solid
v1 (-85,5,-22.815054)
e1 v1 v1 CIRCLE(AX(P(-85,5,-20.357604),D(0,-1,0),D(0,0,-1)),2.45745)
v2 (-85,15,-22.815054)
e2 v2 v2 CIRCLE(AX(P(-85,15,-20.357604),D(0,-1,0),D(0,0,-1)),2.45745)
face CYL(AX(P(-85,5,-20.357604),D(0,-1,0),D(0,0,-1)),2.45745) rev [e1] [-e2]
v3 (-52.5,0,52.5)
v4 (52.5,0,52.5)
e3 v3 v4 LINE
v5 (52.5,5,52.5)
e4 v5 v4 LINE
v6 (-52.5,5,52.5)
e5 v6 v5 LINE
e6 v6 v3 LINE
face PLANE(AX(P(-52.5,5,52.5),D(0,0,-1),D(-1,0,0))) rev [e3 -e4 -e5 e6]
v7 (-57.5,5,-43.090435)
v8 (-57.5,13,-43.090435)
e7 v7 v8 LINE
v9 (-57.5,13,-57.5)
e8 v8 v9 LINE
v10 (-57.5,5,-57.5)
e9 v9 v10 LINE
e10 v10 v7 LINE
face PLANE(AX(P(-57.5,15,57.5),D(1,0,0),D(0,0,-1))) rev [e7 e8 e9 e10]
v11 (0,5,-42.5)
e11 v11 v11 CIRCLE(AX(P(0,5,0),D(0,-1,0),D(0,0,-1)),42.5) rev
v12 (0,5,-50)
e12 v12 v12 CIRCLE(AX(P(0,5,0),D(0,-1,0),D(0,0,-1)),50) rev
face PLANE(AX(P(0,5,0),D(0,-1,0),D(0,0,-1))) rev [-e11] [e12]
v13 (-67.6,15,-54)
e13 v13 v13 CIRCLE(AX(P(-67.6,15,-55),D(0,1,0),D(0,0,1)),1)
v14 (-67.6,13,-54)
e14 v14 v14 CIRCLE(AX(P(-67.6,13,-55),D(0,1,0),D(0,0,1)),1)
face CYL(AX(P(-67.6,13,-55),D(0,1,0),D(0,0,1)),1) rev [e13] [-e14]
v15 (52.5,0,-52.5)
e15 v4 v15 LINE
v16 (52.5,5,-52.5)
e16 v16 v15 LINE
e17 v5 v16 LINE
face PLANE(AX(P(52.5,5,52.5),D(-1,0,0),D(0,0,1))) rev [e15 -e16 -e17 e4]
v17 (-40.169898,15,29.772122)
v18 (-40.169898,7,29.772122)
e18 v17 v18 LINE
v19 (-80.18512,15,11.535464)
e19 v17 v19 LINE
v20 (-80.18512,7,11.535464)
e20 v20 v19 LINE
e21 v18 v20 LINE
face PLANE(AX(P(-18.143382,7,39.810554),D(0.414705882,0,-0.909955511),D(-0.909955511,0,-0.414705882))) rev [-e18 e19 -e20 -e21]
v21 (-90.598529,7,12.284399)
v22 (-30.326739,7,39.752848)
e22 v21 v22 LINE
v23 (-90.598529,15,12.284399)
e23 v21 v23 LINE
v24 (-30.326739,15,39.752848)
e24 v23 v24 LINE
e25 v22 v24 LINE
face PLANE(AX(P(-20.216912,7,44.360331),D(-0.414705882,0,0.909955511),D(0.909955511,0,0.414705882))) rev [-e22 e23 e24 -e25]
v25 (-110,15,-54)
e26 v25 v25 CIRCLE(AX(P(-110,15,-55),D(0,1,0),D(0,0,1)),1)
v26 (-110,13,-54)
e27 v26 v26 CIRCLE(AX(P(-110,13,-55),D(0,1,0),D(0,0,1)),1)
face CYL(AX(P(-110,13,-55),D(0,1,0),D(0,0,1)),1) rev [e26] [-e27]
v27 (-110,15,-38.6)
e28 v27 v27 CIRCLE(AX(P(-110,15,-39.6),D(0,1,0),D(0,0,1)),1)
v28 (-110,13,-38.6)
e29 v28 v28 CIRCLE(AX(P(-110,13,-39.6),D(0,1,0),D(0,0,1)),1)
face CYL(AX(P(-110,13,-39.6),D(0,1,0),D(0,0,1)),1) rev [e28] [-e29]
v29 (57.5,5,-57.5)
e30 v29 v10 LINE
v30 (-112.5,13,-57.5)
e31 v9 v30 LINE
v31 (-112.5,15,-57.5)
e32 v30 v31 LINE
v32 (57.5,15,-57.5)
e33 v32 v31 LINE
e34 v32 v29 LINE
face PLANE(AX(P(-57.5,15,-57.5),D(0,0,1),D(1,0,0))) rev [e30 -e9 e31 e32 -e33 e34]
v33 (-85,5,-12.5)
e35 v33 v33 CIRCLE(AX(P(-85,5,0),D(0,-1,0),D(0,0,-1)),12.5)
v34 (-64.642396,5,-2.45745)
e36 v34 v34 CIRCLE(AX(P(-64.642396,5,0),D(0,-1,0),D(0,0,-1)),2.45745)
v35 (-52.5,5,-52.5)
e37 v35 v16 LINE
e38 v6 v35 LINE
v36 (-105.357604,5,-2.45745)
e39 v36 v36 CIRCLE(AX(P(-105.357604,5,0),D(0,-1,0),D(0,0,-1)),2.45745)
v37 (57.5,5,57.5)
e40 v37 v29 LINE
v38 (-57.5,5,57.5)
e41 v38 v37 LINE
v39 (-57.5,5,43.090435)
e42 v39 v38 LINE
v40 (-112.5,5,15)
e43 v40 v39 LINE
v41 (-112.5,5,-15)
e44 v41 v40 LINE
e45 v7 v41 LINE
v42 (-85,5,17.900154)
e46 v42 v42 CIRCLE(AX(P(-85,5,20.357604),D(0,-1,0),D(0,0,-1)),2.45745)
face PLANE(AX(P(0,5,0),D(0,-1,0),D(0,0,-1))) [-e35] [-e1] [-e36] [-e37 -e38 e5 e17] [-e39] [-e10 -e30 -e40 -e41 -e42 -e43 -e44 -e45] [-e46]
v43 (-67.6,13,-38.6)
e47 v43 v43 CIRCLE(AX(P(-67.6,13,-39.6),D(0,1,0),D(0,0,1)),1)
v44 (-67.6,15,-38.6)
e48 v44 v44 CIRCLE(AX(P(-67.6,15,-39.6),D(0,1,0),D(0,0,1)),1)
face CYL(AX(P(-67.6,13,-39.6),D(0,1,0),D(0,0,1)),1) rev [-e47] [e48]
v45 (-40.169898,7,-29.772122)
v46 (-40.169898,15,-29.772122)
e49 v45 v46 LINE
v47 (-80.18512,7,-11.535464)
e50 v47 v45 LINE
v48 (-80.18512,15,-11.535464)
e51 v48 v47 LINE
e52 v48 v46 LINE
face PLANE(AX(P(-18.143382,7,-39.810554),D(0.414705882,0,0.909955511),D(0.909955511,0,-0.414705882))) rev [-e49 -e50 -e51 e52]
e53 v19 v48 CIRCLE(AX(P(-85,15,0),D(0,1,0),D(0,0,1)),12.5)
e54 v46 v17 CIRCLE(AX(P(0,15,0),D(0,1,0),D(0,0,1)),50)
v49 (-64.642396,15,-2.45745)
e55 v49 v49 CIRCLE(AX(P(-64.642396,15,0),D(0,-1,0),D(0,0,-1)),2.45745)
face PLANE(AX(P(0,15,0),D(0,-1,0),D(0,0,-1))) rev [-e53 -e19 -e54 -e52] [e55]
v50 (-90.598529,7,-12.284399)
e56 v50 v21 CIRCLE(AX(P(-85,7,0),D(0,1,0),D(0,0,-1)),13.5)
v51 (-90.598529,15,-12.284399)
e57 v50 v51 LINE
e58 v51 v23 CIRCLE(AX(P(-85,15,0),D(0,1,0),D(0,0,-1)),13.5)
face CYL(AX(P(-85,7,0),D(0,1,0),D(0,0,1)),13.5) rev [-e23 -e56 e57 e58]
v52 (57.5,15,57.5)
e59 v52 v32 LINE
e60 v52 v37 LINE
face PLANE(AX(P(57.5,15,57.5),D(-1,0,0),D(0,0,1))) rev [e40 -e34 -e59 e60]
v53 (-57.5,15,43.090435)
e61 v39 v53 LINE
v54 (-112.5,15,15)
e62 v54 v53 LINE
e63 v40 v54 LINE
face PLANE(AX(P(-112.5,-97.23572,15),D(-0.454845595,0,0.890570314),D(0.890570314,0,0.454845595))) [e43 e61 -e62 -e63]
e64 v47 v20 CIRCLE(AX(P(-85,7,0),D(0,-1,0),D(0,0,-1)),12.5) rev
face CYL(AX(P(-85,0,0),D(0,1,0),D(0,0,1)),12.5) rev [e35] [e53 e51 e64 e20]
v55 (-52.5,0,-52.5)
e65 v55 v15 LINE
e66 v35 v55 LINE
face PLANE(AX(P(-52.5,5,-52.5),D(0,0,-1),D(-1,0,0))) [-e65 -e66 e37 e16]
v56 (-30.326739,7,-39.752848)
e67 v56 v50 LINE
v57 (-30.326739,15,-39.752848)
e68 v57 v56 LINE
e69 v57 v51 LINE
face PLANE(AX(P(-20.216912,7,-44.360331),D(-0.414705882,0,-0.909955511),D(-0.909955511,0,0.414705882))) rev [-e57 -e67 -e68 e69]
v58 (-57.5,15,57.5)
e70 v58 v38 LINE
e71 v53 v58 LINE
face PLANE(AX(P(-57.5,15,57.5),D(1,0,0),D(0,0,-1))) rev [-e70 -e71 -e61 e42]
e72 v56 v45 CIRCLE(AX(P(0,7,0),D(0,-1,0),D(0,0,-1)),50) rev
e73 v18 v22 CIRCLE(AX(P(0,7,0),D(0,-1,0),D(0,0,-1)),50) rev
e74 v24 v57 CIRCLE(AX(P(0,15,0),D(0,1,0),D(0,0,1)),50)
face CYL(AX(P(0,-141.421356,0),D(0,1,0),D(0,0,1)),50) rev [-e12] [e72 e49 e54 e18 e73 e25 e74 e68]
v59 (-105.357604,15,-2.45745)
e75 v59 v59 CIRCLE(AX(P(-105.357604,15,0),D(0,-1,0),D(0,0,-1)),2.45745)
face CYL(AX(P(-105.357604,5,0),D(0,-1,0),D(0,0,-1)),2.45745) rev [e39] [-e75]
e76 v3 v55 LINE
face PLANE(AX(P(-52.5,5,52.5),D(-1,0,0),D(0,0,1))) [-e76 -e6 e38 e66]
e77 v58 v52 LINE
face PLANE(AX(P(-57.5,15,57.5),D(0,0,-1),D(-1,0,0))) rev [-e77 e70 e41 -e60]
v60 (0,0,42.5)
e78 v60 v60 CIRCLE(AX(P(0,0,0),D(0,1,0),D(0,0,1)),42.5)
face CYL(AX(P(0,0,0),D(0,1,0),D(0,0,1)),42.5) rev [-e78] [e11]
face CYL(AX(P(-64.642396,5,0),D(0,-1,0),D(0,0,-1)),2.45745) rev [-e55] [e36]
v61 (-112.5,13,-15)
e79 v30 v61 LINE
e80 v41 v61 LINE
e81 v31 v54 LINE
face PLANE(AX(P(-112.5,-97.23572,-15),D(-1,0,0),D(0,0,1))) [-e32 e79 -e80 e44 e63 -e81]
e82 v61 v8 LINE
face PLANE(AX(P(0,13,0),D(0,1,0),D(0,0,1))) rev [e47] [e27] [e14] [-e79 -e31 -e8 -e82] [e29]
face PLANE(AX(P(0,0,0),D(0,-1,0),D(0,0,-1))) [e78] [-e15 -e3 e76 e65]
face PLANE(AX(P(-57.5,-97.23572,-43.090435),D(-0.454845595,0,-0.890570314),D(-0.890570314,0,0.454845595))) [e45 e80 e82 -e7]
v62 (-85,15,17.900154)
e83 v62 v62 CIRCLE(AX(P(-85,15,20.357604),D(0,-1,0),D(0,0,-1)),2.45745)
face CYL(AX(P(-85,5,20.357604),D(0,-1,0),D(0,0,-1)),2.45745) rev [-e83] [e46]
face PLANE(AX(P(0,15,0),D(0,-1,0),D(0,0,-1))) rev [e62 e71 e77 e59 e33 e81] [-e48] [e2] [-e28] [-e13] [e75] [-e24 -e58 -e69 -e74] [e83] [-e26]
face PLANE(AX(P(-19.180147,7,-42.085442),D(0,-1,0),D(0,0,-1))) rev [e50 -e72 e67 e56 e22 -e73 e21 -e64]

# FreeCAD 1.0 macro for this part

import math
import FreeCAD as App
import Part
import Sketcher

doc = App.newDocument("Part")
body = doc.addObject("PartDesign::Body", "Body")

sketch1 = body.newObject("Sketcher::SketchObject", "Sketch")
sketch1.AttachmentSupport = (doc.getObject("XZ_Plane"), [""])
sketch1.MapMode = "FlatFace"
sketch1.addGeometry([
    Part.LineSegment(App.Vector(-52, -52, 0), App.Vector(-52, 52, 0)),
    Part.LineSegment(App.Vector(-52, 52, 0), App.Vector(52, 52, 0)),
    Part.LineSegment(App.Vector(52, 52, 0), App.Vector(52, -52, 0)),
    Part.LineSegment(App.Vector(52, -52, 0), App.Vector(-52, -52, 0)),
], False)
sketch1.addConstraint([
    Sketcher.Constraint("Coincident", 0, 2, 1, 1),
    Sketcher.Constraint("Coincident", 1, 2, 2, 1),
    Sketcher.Constraint("Coincident", 2, 2, 3, 1),
    Sketcher.Constraint("Coincident", 3, 2, 0, 1),
    Sketcher.Constraint("Vertical", 0),
    Sketcher.Constraint("Horizontal", 1),
    Sketcher.Constraint("Vertical", 2),
    Sketcher.Constraint("Horizontal", 3),
    Sketcher.Constraint("Symmetric", 0, 2, 2, 2, -1, 1),
    Sketcher.Constraint("Equal", 3, 0),
    Sketcher.Constraint("DistanceX", 1, 1, 1, 2, 105.0),
])
pad1 = body.newObject("PartDesign::Pad", "Pad")
pad1.Profile = sketch1
pad1.Length = 5
pad1.Reversed = True

sketch2 = body.newObject("Sketcher::SketchObject", "Sketch001")
sketch2.AttachmentSupport = (doc.getObject("XZ_Plane"), [""])
sketch2.MapMode = "FlatFace"
sketch2.AttachmentOffset = App.Placement(App.Vector(0, 0, -5), App.Rotation())
sketch2.addGeometry([
    Part.LineSegment(App.Vector(-58, -58, 0), App.Vector(-58, 58, 0)),
    Part.LineSegment(App.Vector(-58, 58, 0), App.Vector(58, 58, 0)),
    Part.LineSegment(App.Vector(58, 58, 0), App.Vector(58, -58, 0)),
    Part.LineSegment(App.Vector(58, -58, 0), App.Vector(-58, -58, 0)),
], False)
sketch2.addConstraint([
    Sketcher.Constraint("Coincident", 0, 2, 1, 1),
    Sketcher.Constraint("Coincident", 1, 2, 2, 1),
    Sketcher.Constraint("Coincident", 2, 2, 3, 1),
    Sketcher.Constraint("Coincident", 3, 2, 0, 1),
    Sketcher.Constraint("Vertical", 0),
    Sketcher.Constraint("Horizontal", 1),
    Sketcher.Constraint("Vertical", 2),
    Sketcher.Constraint("Horizontal", 3),
    Sketcher.Constraint("Symmetric", 0, 2, 2, 2, -1, 1),
    Sketcher.Constraint("Equal", 3, 0),
    Sketcher.Constraint("DistanceX", 1, 1, 1, 2, 115.0),
])
pad2 = body.newObject("PartDesign::Pad", "Pad001")
pad2.Profile = sketch2
pad2.Length = 10
pad2.Reversed = True

sketch3 = body.newObject("Sketcher::SketchObject", "Sketch002")
sketch3.AttachmentSupport = (doc.getObject("XZ_Plane"), [""])
sketch3.MapMode = "FlatFace"
sketch3.AttachmentOffset = App.Placement(App.Vector(0, 0, -15), App.Rotation())
sketch3.addGeometry(Part.Circle(App.Vector(0, 0, 0), App.Vector(0, 0, 1), 42), False)
sketch3.addConstraint([
    Sketcher.Constraint("Coincident", 0, 3, -1, 1),
    Sketcher.Constraint("Diameter", 0, 85.0),
])
pocket1 = body.newObject("PartDesign::Pocket", "Pocket")
pocket1.Profile = sketch3
pocket1.Type = "ThroughAll"
pocket1.Reversed = True

sketch4 = body.newObject("Sketcher::SketchObject", "Sketch003")
sketch4.AttachmentSupport = (doc.getObject("XZ_Plane"), [""])
sketch4.MapMode = "FlatFace"
sketch4.AttachmentOffset = App.Placement(App.Vector(0, 0, -15), App.Rotation())
sketch4.addGeometry(Part.Circle(App.Vector(0, 0, 0), App.Vector(0, 0, 1), 50), False)
sketch4.addConstraint([
    Sketcher.Constraint("Coincident", 0, 3, -1, 1),
    Sketcher.Constraint("Diameter", 0, 100.0),
])
pocket2 = body.newObject("PartDesign::Pocket", "Pocket001")
pocket2.Profile = sketch4
pocket2.Length = 10
pocket2.Reversed = True

sketch5 = body.newObject("Sketcher::SketchObject", "Sketch004")
sketch5.AttachmentSupport = (doc.getObject("XZ_Plane"), [""])
sketch5.MapMode = "FlatFace"
sketch5.AttachmentOffset = App.Placement(App.Vector(0, 0, -15), App.Rotation())
sketch5.addGeometry([
    Part.LineSegment(App.Vector(-58, 43, 0), App.Vector(-58, -43, 0)),
    Part.LineSegment(App.Vector(-58, -43, 0), App.Vector(-112, -15, 0)),
    Part.LineSegment(App.Vector(-112, -15, 0), App.Vector(-112, 15, 0)),
    Part.LineSegment(App.Vector(-112, 15, 0), App.Vector(-58, 43, 0)),
], False)
sketch5.addConstraint([
    Sketcher.Constraint("Coincident", 0, 2, 1, 1),
    Sketcher.Constraint("Coincident", 1, 2, 2, 1),
    Sketcher.Constraint("Coincident", 2, 2, 3, 1),
    Sketcher.Constraint("Coincident", 3, 2, 0, 1),
    Sketcher.Constraint("Vertical", 0),
    Sketcher.Constraint("Vertical", 2),
    Sketcher.Constraint("Equal", 1, 3),
    Sketcher.Constraint("DistanceY", 2, 1, 2, 2, 30.0),
    Sketcher.Constraint("DistanceY", 1, 2, -1, 1, 15.0),
    Sketcher.Constraint("DistanceX", 1, 2, 0, 2, 55.0),
    Sketcher.Constraint("DistanceX", 0, 2, -1, 1, 57.5),
    Sketcher.Constraint("DistanceY", 0, 2, 0, 1, 86.18087),
])
pad3 = body.newObject("PartDesign::Pad", "Pad002")
pad3.Profile = sketch5
pad3.Length = 10

sketch6 = body.newObject("Sketcher::SketchObject", "Sketch005")
sketch6.AttachmentSupport = (doc.getObject("XZ_Plane"), [""])
sketch6.MapMode = "FlatFace"
sketch6.AttachmentOffset = App.Placement(App.Vector(0, 0, -15), App.Rotation())
sketch6.addGeometry(Part.Circle(App.Vector(-85, 0, 0), App.Vector(0, 0, 1), 12), False)
sketch6.addConstraint([
    Sketcher.Constraint("PointOnObject", 0, 3, -1),
    Sketcher.Constraint("Diameter", 0, 25.0),
    Sketcher.Constraint("DistanceX", 0, 3, -1, 1, 85.0),
])
pocket3 = body.newObject("PartDesign::Pocket", "Pocket002")
pocket3.Profile = sketch6
pocket3.Type = "ThroughAll"
pocket3.Reversed = True

sketch7 = body.newObject("Sketcher::SketchObject", "Sketch006")
sketch7.AttachmentSupport = (doc.getObject("XZ_Plane"), [""])
sketch7.MapMode = "FlatFace"
sketch7.AttachmentOffset = App.Placement(App.Vector(0, 0, -5), App.Rotation())
sketch7.addGeometry([
    Part.Circle(App.Vector(-64.6, 0, 0), App.Vector(0, 0, 1), 2.5),
    Part.Circle(App.Vector(-85, 20.4, 0), App.Vector(0, 0, 1), 2.5),
    Part.Circle(App.Vector(-105.4, 0, 0), App.Vector(0, 0, 1), 2.5),
    Part.Circle(App.Vector(-85, -20.4, 0), App.Vector(0, 0, 1), 2.5),
], False)
sketch7.addConstraint([
    Sketcher.Constraint("Equal", 0, 1),
    Sketcher.Constraint("Equal", 1, 2),
    Sketcher.Constraint("Equal", 2, 3),
    Sketcher.Constraint("Symmetric", 1, 3, 3, 3, -1),
    Sketcher.Constraint("PointOnObject", 0, 3, -1),
    Sketcher.Constraint("PointOnObject", 2, 3, -1),
    Sketcher.Constraint("DistanceX", 1, 3, -1, 1, 85.0),
    Sketcher.Constraint("Diameter", 0, 4.9149),
    Sketcher.Constraint("DistanceX", 2, 3, 0, 3, 40.715208),
    Sketcher.Constraint("DistanceY", 3, 3, 1, 3, 40.715208),
    Sketcher.Constraint("DistanceX", 0, 3, -1, 1, 64.642396),
])
doc.recompute()
hole = body.newObject("PartDesign::Hole", "Hole")
hole.Profile = sketch7
hole.ThreadType = "None"
hole.Diameter = 4.9149
hole.DepthType = "ThroughAll"

sketch8 = body.newObject("Sketcher::SketchObject", "Sketch007")
sketch8.AttachmentSupport = (doc.getObject("XZ_Plane"), [""])
sketch8.MapMode = "FlatFace"
sketch8.AttachmentOffset = App.Placement(App.Vector(0, 0, -15), App.Rotation())
sketch8.addGeometry([
    Part.LineSegment(App.Vector(-20.2, -44.4, 0), App.Vector(-90.6, -12.3, 0)),
    Part.ArcOfCircle(Part.Circle(App.Vector(-85, 0, 0), App.Vector(0, 0, 1), 13.5), math.radians(115), math.radians(245)),
    Part.LineSegment(App.Vector(-90.6, 12.3, 0), App.Vector(-20.2, 44.4, 0)),
    Part.ArcOfCircle(Part.Circle(App.Vector(-19.2, 42.1, 0), App.Vector(0, 0, 1), 2.5), math.radians(-65), math.radians(115)),
    Part.LineSegment(App.Vector(-18.1, 39.8, 0), App.Vector(-88.5, 7.7, 0)),
    Part.ArcOfCircle(Part.Circle(App.Vector(-85, 0, 0), App.Vector(0, 0, 1), 8.5), math.radians(115), math.radians(245)),
    Part.LineSegment(App.Vector(-88.5, -7.7, 0), App.Vector(-18.1, -39.8, 0)),
    Part.ArcOfCircle(Part.Circle(App.Vector(-19.2, -42.1, 0), App.Vector(0, 0, 1), 2.5), math.radians(-115), math.radians(65)),
], False)
sketch8.addConstraint([
    Sketcher.Constraint("Tangent", 0, 2, 1, 2),
    Sketcher.Constraint("Tangent", 1, 1, 2, 1),
    Sketcher.Constraint("Tangent", 2, 2, 3, 2),
    Sketcher.Constraint("Tangent", 3, 1, 4, 1),
    Sketcher.Constraint("Tangent", 4, 2, 5, 1),
    Sketcher.Constraint("Tangent", 5, 2, 6, 1),
    Sketcher.Constraint("Tangent", 6, 2, 7, 2),
    Sketcher.Constraint("Tangent", 7, 1, 0, 1),
    Sketcher.Constraint("Coincident", 5, 3, 1, 3),
    Sketcher.Constraint("Equal", 3, 7),
    Sketcher.Constraint("Symmetric", 3, 3, 7, 3, -1),
    Sketcher.Constraint("PointOnObject", 1, 3, -1),
    Sketcher.Constraint("Parallel", 2, 4),
    Sketcher.Constraint("Radius", 1, 13.5),
    Sketcher.Constraint("Radius", 3, 2.5),
    Sketcher.Constraint("DistanceX", 1, 3, -1, 1, 85.0),
    Sketcher.Constraint("DistanceX", 4, 2, -1, 1, 88.525),
    Sketcher.Constraint("Distance", 0, 77.346218),
])
pocket4 = body.newObject("PartDesign::Pocket", "Pocket003")
pocket4.Profile = sketch8
pocket4.Length = 8
pocket4.Reversed = True

sketch9 = body.newObject("Sketcher::SketchObject", "Sketch008")
sketch9.AttachmentSupport = (doc.getObject("XZ_Plane"), [""])
sketch9.MapMode = "FlatFace"
sketch9.AttachmentOffset = App.Placement(App.Vector(0, 0, -15), App.Rotation())
sketch9.addGeometry([
    Part.LineSegment(App.Vector(-57.5, -57.5, 0), App.Vector(-112.5, -57.5, 0)),
    Part.LineSegment(App.Vector(-112.5, -57.5, 0), App.Vector(-112.5, -15, 0)),
    Part.LineSegment(App.Vector(-112.5, -15, 0), App.Vector(-57.5, -43.1, 0)),
    Part.LineSegment(App.Vector(-57.5, -43.1, 0), App.Vector(-57.5, -57.5, 0)),
    Part.Circle(App.Vector(-110, -39.6, 0), App.Vector(0, 0, 1), 1),
    Part.Circle(App.Vector(-67.6, -39.6, 0), App.Vector(0, 0, 1), 1),
    Part.Circle(App.Vector(-110, -55, 0), App.Vector(0, 0, 1), 1),
    Part.Circle(App.Vector(-67.6, -55, 0), App.Vector(0, 0, 1), 1),
], False)
sketch9.addConstraint([
    Sketcher.Constraint("Coincident", 0, 2, 1, 1),
    Sketcher.Constraint("Coincident", 1, 2, 2, 1),
    Sketcher.Constraint("Coincident", 2, 2, 3, 1),
    Sketcher.Constraint("Coincident", 3, 2, 0, 1),
    Sketcher.Constraint("Horizontal", 0),
    Sketcher.Constraint("Vertical", 1),
    Sketcher.Constraint("Vertical", 3),
    Sketcher.Constraint("Equal", 4, 5),
    Sketcher.Constraint("Equal", 5, 6),
    Sketcher.Constraint("Equal", 6, 7),
    Sketcher.Constraint("Horizontal", 4, 3, 5, 3),
    Sketcher.Constraint("Horizontal", 6, 3, 7, 3),
    Sketcher.Constraint("Vertical", 4, 3, 6, 3),
    Sketcher.Constraint("Vertical", 5, 3, 7, 3),
    Sketcher.Constraint("Diameter", 4, 2.0),
    Sketcher.Constraint("DistanceX", 0, 2, 0, 1, 55.0),
    Sketcher.Constraint("DistanceY", 1, 1, 1, 2, 42.5),
    Sketcher.Constraint("DistanceX", 4, 3, -1, 1, 110.0),
    Sketcher.Constraint("DistanceY", 6, 3, -1, 1, 55.0),
    Sketcher.Constraint("DistanceY", 1, 2, -1, 1, 15.0),
    Sketcher.Constraint("DistanceY", 4, 3, -1, 1, 39.6),
    Sketcher.Constraint("DistanceX", 5, 3, -1, 1, 67.6),
    Sketcher.Constraint("DistanceX", 0, 2, -1, 1, 112.5),
    Sketcher.Constraint("Distance", 2, 61.758178),
])
pad4 = body.newObject("PartDesign::Pad", "Pad003")
pad4.Profile = sketch9
pad4.Length = 2

doc.recompute()
